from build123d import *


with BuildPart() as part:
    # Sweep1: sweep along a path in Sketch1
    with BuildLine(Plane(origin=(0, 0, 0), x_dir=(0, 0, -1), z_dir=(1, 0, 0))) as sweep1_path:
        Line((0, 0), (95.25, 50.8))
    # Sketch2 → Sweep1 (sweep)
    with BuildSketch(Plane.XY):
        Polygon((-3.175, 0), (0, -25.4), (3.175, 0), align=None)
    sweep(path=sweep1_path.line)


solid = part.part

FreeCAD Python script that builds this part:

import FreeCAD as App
import Part
import Sketcher

V = App.Vector
Q = App.Units.Quantity

doc = App.newDocument("Part")
params = doc.addObject("Spreadsheet::Sheet", "Params")
for row, (alias, value) in enumerate([
    ("sketch1_width", "0.25 in"),
    ("sketch2_width", "4.25 in"),
], start=1):
    params.set(f"A{row}", alias)
    params.set(f"B{row}", "=" + value)
    params.setAlias(f"B{row}", alias)

body = doc.addObject("PartDesign::Body", "Body")

# Sketch on XY plane
sketch1 = doc.addObject("Sketcher::SketchObject", "Sketch")
body.addObject(sketch1)
sketch1.AttachmentSupport = (doc.XY_Plane, [""])
sketch1.MapMode = "FlatFace"
sketch1.addGeometry(Part.LineSegment(V(-3, 0, 0), V(0, -25, 0)), False)
sketch1.addGeometry(Part.LineSegment(V(0, -25, 0), V(3, 0, 0)), False)
sketch1.addGeometry(Part.LineSegment(V(3, 0, 0), V(-3, 0, 0)), False)
sketch1.addConstraint(Sketcher.Constraint("Coincident", 0, 2, 1, 1))
sketch1.addConstraint(Sketcher.Constraint("Coincident", 1, 2, 2, 1))
sketch1.addConstraint(Sketcher.Constraint("Coincident", 2, 2, 0, 1))
sketch1.addConstraint(Sketcher.Constraint("Horizontal", 2))
sketch1.addConstraint(Sketcher.Constraint("Symmetric", 1, 2, 2, 2, -1, 1))
sketch1.addConstraint(Sketcher.Constraint("PointOnObject", 0, 2, -2))
sketch1.addConstraint(Sketcher.Constraint("DistanceY", 0, 2, -1, 1, Q("1 in")))
sketch1.addConstraint(Sketcher.Constraint("DistanceX", 2, 2, 2, 1, Q("0.25 in")))
sketch1.setExpression("Constraints[7]", "Params.sketch1_width")

# Sketch on an angled plane
sketch2 = doc.addObject("Sketcher::SketchObject", "Sketch001")
body.addObject(sketch2)
sketch2.Placement = App.Placement(V(0, 0, 0), App.Rotation(V(0, -0.470588235, 0.882352941), V(0.999999999, 0, 0), V(0, 0.882352941, 0.470588235), "ZXY"))
sketch2.addGeometry(Part.LineSegment(V(0, 0, 0), V(-108, 0, 0)), False)
sketch2.addConstraint(Sketcher.Constraint("Horizontal", 0))
sketch2.addConstraint(Sketcher.Constraint("Coincident", 0, 1, -1, 1))
sketch2.addConstraint(Sketcher.Constraint("DistanceX", 0, 2, 0, 1, Q("4.25 in")))
sketch2.setExpression("Constraints[2]", "Params.sketch2_width")
doc.recompute()

additivepipe = doc.addObject("PartDesign::AdditivePipe", "AdditivePipe")
body.addObject(additivepipe)
additivepipe.Profile = sketch1
additivepipe.Spine = (sketch2, ["Edge1"])

doc.recompute()
